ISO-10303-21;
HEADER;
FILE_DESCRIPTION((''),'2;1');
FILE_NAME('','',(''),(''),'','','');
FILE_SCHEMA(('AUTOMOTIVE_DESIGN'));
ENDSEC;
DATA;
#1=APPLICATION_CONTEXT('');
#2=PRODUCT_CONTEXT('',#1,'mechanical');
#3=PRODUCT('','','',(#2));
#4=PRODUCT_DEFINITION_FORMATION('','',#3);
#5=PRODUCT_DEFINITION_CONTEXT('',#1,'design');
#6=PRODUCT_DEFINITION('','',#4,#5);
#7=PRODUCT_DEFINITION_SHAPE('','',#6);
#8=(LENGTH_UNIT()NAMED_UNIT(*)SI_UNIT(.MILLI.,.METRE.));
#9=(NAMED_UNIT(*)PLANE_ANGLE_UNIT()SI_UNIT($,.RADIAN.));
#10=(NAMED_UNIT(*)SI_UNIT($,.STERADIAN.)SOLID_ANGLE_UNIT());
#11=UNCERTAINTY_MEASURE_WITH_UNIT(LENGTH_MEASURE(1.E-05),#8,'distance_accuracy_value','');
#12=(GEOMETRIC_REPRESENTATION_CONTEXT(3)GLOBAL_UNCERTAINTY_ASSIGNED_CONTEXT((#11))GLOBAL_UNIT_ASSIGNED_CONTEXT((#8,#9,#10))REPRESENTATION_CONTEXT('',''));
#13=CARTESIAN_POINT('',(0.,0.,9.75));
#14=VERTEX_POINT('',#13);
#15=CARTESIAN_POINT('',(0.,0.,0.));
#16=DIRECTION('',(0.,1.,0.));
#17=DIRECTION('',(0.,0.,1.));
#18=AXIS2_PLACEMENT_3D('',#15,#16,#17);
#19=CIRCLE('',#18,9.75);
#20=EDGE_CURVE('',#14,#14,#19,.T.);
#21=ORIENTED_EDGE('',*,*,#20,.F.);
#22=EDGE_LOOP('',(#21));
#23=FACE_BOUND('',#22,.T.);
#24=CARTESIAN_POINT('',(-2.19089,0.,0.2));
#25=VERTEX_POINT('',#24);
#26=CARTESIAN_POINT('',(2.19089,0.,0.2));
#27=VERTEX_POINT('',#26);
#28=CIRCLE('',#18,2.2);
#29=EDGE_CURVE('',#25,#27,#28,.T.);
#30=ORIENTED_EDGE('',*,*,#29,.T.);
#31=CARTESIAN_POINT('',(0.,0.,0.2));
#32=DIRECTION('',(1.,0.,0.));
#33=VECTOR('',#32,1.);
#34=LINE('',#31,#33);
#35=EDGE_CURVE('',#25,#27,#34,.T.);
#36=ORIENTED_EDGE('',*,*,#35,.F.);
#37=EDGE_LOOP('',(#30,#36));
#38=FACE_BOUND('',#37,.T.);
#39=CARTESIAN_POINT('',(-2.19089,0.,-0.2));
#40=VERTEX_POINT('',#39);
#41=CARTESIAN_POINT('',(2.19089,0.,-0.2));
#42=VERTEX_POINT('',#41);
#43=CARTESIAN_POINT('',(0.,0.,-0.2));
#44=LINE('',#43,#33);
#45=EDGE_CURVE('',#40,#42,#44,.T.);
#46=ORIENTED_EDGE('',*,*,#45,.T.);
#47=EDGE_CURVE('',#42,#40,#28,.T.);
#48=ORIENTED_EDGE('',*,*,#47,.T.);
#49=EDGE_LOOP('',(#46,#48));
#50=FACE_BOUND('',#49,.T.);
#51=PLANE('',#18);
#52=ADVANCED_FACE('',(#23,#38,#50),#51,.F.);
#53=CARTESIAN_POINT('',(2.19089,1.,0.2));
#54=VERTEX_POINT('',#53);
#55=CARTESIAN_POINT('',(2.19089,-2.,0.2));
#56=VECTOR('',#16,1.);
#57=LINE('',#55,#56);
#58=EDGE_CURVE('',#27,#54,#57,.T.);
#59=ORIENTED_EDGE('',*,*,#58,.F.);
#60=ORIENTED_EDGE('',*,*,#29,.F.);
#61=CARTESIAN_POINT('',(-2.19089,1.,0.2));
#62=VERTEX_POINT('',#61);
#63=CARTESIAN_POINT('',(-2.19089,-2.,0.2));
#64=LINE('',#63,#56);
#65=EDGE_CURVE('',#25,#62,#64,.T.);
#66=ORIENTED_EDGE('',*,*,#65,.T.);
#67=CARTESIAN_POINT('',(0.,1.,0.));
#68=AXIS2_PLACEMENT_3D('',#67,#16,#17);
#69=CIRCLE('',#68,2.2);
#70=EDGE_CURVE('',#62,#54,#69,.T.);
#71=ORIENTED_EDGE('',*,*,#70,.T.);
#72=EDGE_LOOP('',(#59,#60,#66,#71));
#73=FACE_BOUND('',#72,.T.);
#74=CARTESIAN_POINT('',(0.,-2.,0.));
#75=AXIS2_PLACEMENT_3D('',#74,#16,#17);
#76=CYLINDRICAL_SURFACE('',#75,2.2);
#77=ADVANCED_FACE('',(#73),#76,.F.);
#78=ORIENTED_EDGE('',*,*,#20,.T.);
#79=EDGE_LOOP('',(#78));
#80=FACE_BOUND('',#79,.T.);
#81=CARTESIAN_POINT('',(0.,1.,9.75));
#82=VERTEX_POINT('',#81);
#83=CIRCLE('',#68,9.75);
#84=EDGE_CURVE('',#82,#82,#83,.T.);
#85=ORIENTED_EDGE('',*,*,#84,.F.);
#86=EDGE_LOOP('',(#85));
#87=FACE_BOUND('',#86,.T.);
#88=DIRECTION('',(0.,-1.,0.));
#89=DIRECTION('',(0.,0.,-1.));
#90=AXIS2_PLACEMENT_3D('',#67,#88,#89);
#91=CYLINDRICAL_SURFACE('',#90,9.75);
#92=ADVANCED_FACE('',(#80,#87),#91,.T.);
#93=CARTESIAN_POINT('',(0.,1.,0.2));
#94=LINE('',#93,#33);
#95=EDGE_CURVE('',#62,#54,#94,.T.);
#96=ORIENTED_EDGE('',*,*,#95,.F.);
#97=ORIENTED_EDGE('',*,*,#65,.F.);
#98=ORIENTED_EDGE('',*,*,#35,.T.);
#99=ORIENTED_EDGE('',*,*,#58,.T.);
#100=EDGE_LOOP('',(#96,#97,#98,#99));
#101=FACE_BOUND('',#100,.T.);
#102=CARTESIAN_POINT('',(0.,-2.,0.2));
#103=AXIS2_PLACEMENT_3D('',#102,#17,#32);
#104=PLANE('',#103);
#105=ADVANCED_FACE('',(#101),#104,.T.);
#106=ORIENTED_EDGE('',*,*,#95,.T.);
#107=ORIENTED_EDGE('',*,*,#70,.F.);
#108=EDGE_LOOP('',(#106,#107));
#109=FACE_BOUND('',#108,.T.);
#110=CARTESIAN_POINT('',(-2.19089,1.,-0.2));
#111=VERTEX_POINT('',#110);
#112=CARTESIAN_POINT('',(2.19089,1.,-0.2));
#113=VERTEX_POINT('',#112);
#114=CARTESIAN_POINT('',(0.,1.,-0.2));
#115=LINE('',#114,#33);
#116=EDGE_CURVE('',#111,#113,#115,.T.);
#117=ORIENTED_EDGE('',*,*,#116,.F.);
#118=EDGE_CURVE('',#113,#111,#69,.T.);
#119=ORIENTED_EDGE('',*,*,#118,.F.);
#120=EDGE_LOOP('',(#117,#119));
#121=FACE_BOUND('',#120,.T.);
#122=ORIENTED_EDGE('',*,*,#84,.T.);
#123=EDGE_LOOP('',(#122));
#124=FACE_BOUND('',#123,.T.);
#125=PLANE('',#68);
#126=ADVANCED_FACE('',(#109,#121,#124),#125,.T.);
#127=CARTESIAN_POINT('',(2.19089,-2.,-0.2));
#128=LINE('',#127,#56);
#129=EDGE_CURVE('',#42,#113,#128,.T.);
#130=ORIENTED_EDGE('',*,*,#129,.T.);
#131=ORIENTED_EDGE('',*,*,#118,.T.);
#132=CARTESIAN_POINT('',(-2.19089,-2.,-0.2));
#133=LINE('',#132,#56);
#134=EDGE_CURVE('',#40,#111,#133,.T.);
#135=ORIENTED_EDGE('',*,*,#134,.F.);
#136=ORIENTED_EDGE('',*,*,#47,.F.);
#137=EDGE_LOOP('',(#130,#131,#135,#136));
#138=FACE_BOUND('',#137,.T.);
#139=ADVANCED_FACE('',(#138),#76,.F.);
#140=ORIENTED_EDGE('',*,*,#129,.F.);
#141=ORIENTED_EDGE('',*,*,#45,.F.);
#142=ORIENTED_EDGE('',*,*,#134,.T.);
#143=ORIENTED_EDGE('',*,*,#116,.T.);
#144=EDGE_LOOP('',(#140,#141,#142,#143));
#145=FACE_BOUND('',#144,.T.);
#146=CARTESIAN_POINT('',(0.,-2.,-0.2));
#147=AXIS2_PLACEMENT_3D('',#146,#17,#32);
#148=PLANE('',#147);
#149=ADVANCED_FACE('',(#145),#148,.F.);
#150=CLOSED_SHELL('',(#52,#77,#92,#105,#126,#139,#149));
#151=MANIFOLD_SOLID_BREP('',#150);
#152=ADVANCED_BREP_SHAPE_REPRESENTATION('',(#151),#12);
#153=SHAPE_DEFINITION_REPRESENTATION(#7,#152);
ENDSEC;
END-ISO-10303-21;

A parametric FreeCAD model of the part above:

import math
import FreeCAD as App
import Part
import Sketcher

doc = App.newDocument("Part")
params = doc.addObject("Spreadsheet::Sheet", "Params")
for row, (alias, value) in enumerate([
    ("sketch1_diameter", "19.5 mm"),
    ("pad1_length", "1 mm"),
    ("sketch2_radius", "2.2 mm"),
    ("pocket1_length", "3 mm"),
], start=1):
    params.set(f"A{row}", alias)
    params.set(f"B{row}", "=" + value)
    params.setAlias(f"B{row}", alias)

body = doc.addObject("PartDesign::Body", "Body")

sketch1 = body.newObject("Sketcher::SketchObject", "Sketch")
sketch1.AttachmentSupport = (doc.getObject("XZ_Plane"), [""])
sketch1.MapMode = "FlatFace"
sketch1.addGeometry(Part.Circle(App.Vector(0, 0, 0), App.Vector(0, 0, 1), 10), False)
sketch1.addConstraint([
    Sketcher.Constraint("Coincident", 0, 3, -1, 1),
    Sketcher.Constraint("Diameter", 0, 19.5),
])
sketch1.setExpression("Constraints[1]", "Params.sketch1_diameter")
pad1 = body.newObject("PartDesign::Pad", "Pad")
pad1.Profile = sketch1
pad1.setExpression("Length", "Params.pad1_length")
pad1.Reversed = True

sketch2 = body.newObject("Sketcher::SketchObject", "Sketch001")
sketch2.AttachmentSupport = (doc.getObject("XZ_Plane"), [""])
sketch2.MapMode = "FlatFace"
sketch2.AttachmentOffset = App.Placement(App.Vector(0, 0, -1), App.Rotation())
sketch2.addGeometry([
    Part.LineSegment(App.Vector(-2.2, -0.2, 0), App.Vector(2.2, -0.2, 0)),
    Part.ArcOfCircle(Part.Circle(App.Vector(0, 0, 0), App.Vector(0, 0, 1), 2.2), math.radians(-175), math.radians(-5)),
    Part.LineSegment(App.Vector(2.2, 0.2, 0), App.Vector(-2.2, 0.2, 0)),
    Part.ArcOfCircle(Part.Circle(App.Vector(0, 0, 0), App.Vector(0, 0, 1), 2.2), math.radians(5), math.radians(175)),
], False)
sketch2.addConstraint([
    Sketcher.Constraint("Coincident", 0, 1, 1, 1),
    Sketcher.Constraint("Coincident", 1, 2, 0, 2),
    Sketcher.Constraint("Coincident", 2, 1, 3, 1),
    Sketcher.Constraint("Coincident", 3, 2, 2, 2),
    Sketcher.Constraint("Horizontal", 0),
    Sketcher.Constraint("Horizontal", 2),
    Sketcher.Constraint("Coincident", 1, 3, -1, 1),
    Sketcher.Constraint("Coincident", 3, 3, -1, 1),
    Sketcher.Constraint("Equal", 1, 3),
    Sketcher.Constraint("Vertical", 1, 2, 2, 1),
    Sketcher.Constraint("Radius", 1, 2.2),
    Sketcher.Constraint("DistanceY", 0, 1, -1, 1, 0.2),
])
sketch2.setExpression("Constraints[10]", "Params.sketch2_radius")
pocket1 = body.newObject("PartDesign::Pocket", "Pocket")
pocket1.Profile = sketch2
pocket1.setExpression("Length", "Params.pocket1_length")
pocket1.Reversed = True

doc.recompute()
